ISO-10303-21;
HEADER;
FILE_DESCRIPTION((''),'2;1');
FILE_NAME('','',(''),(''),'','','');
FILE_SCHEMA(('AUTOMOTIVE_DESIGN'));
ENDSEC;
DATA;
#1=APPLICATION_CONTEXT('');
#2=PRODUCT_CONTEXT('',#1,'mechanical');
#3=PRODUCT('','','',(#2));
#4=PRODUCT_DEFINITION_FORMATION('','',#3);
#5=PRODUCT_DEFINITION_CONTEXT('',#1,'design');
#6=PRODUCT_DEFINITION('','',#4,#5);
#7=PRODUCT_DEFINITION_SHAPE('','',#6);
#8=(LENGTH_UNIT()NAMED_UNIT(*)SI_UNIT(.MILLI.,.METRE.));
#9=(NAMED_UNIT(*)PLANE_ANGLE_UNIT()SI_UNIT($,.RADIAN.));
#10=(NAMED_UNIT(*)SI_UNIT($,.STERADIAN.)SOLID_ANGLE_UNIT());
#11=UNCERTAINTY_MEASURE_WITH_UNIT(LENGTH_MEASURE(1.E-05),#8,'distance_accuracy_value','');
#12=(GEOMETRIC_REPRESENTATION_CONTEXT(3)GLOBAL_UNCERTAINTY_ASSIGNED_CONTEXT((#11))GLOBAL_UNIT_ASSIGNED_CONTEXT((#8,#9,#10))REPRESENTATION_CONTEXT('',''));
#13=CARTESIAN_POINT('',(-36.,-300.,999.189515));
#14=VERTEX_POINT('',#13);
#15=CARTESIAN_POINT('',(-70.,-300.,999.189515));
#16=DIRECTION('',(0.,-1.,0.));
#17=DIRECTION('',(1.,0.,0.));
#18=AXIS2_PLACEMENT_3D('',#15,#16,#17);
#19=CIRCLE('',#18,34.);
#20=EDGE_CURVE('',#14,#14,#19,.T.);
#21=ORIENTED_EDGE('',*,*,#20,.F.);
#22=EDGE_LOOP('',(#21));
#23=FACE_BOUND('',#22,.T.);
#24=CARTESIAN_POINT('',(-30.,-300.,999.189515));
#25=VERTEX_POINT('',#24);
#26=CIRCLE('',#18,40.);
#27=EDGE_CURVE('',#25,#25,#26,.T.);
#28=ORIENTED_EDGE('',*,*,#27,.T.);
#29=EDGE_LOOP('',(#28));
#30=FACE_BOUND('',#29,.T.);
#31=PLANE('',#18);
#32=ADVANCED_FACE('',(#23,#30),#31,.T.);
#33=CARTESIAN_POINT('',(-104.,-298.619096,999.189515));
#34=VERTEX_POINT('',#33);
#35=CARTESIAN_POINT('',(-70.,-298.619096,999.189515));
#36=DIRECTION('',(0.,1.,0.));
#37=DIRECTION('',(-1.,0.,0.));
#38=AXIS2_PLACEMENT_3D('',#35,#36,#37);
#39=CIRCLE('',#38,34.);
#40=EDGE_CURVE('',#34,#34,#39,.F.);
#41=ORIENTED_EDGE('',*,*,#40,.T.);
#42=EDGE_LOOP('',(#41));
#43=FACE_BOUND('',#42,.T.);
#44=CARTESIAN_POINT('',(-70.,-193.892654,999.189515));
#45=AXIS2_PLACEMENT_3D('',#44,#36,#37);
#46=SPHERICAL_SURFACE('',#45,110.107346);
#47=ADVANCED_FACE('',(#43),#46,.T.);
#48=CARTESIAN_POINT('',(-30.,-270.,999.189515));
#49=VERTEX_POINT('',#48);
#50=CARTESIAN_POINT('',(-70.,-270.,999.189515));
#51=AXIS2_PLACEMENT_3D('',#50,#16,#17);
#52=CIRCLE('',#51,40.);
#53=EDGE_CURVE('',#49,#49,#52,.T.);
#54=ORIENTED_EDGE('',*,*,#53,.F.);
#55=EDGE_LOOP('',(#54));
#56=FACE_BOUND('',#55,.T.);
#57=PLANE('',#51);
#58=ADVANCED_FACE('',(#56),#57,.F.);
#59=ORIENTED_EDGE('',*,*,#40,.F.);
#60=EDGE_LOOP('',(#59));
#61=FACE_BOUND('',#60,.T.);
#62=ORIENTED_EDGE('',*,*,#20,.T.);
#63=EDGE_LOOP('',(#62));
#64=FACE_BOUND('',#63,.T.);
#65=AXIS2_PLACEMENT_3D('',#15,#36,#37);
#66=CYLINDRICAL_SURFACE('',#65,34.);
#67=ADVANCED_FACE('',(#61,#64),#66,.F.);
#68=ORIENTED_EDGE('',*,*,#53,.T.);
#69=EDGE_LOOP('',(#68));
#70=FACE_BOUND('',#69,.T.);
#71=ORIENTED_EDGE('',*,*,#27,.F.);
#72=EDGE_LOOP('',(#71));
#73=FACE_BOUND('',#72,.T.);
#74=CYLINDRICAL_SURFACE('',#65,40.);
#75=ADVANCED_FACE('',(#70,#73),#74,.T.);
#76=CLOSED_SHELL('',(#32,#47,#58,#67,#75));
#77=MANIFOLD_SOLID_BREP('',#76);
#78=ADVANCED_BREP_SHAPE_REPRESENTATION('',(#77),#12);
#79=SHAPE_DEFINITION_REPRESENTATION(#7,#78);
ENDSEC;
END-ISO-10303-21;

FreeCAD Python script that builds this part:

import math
import FreeCAD as App
import Part
import Sketcher

V = App.Vector

doc = App.newDocument("Part")
body = doc.addObject("PartDesign::Body", "Body")

sketch1 = doc.addObject("Sketcher::SketchObject", "Sketch")
body.addObject(sketch1)
sketch1.AttachmentSupport = (doc.XZ_Plane, [""])
sketch1.MapMode = "FlatFace"
sketch1.AttachmentOffset = App.Placement(V(0, 0, 270), App.Rotation())
sketch1.addGeometry([
    Part.Circle(V(-70, 999.189515, 0), V(0, 0, 1), 40),
    Part.Circle(V(-70, 999.189515, 0), V(0, 0, 1), 34),
], False)
sketch1.addConstraint([
    Sketcher.Constraint("Coincident", 1, 3, 0, 3),
    Sketcher.Constraint("Diameter", 0, 80.0),
    Sketcher.Constraint("Diameter", 1, 68.0),
    Sketcher.Constraint("DistanceX", 0, 3, -1, 1, 70.0),
    Sketcher.Constraint("DistanceY", -1, 1, 0, 3, 999.189515),
])
pad1 = doc.addObject("PartDesign::Pad", "Pad")
body.addObject(pad1)
pad1.Profile = sketch1
pad1.Length = 30

sketch2 = doc.addObject("Sketcher::SketchObject", "Sketch001")
body.addObject(sketch2)
sketch2.AttachmentSupport = (doc.XY_Plane, [""])
sketch2.MapMode = "FlatFace"
sketch2.AttachmentOffset = App.Placement(V(0, 0, 999.189515), App.Rotation())
sketch2.addGeometry([
    Part.LineSegment(V(-104, -270, 0), V(-104, -298.619096, 0)),
    Part.ArcOfCircle(Part.Circle(V(-70, -193.892654, 0), V(0, 0, 1), 110.107346), math.radians(-107.9863), math.radians(-90)),
    Part.LineSegment(V(-70, -304, 0), V(-70, -270, 0)),
    Part.LineSegment(V(-70, -270, 0), V(-104, -270, 0)),
], False)
sketch2.addGeometry(Part.LineSegment(V(-70, -193.892654, 0), V(-70, -304, 0)), True)
sketch2.addConstraint([
    Sketcher.Constraint("Coincident", 0, 2, 1, 1),
    Sketcher.Constraint("Coincident", 1, 2, 2, 1),
    Sketcher.Constraint("Coincident", 2, 2, 3, 1),
    Sketcher.Constraint("Coincident", 3, 2, 0, 1),
    Sketcher.Constraint("Vertical", 0),
    Sketcher.Constraint("Vertical", 2),
    Sketcher.Constraint("Horizontal", 3),
    Sketcher.Constraint("Vertical", 4),
    Sketcher.Constraint("Coincident", 4, 1, 1, 3),
    Sketcher.Constraint("Coincident", 4, 2, 1, 2),
    Sketcher.Constraint("Equal", 3, 2),
    Sketcher.Constraint("DistanceX", 3, 2, 3, 1, 34.0),
    Sketcher.Constraint("DistanceX", 1, 3, -1, 1, 70.0),
    Sketcher.Constraint("DistanceY", 1, 2, -1, 1, 304.0),
    Sketcher.Constraint("Radius", 1, 110.107346),
])
revolution = doc.addObject("PartDesign::Revolution", "Revolution")
body.addObject(revolution)
revolution.Profile = sketch2
revolution.ReferenceAxis = (sketch2, ["Axis0"])
revolution.Angle = 360

doc.recompute()
